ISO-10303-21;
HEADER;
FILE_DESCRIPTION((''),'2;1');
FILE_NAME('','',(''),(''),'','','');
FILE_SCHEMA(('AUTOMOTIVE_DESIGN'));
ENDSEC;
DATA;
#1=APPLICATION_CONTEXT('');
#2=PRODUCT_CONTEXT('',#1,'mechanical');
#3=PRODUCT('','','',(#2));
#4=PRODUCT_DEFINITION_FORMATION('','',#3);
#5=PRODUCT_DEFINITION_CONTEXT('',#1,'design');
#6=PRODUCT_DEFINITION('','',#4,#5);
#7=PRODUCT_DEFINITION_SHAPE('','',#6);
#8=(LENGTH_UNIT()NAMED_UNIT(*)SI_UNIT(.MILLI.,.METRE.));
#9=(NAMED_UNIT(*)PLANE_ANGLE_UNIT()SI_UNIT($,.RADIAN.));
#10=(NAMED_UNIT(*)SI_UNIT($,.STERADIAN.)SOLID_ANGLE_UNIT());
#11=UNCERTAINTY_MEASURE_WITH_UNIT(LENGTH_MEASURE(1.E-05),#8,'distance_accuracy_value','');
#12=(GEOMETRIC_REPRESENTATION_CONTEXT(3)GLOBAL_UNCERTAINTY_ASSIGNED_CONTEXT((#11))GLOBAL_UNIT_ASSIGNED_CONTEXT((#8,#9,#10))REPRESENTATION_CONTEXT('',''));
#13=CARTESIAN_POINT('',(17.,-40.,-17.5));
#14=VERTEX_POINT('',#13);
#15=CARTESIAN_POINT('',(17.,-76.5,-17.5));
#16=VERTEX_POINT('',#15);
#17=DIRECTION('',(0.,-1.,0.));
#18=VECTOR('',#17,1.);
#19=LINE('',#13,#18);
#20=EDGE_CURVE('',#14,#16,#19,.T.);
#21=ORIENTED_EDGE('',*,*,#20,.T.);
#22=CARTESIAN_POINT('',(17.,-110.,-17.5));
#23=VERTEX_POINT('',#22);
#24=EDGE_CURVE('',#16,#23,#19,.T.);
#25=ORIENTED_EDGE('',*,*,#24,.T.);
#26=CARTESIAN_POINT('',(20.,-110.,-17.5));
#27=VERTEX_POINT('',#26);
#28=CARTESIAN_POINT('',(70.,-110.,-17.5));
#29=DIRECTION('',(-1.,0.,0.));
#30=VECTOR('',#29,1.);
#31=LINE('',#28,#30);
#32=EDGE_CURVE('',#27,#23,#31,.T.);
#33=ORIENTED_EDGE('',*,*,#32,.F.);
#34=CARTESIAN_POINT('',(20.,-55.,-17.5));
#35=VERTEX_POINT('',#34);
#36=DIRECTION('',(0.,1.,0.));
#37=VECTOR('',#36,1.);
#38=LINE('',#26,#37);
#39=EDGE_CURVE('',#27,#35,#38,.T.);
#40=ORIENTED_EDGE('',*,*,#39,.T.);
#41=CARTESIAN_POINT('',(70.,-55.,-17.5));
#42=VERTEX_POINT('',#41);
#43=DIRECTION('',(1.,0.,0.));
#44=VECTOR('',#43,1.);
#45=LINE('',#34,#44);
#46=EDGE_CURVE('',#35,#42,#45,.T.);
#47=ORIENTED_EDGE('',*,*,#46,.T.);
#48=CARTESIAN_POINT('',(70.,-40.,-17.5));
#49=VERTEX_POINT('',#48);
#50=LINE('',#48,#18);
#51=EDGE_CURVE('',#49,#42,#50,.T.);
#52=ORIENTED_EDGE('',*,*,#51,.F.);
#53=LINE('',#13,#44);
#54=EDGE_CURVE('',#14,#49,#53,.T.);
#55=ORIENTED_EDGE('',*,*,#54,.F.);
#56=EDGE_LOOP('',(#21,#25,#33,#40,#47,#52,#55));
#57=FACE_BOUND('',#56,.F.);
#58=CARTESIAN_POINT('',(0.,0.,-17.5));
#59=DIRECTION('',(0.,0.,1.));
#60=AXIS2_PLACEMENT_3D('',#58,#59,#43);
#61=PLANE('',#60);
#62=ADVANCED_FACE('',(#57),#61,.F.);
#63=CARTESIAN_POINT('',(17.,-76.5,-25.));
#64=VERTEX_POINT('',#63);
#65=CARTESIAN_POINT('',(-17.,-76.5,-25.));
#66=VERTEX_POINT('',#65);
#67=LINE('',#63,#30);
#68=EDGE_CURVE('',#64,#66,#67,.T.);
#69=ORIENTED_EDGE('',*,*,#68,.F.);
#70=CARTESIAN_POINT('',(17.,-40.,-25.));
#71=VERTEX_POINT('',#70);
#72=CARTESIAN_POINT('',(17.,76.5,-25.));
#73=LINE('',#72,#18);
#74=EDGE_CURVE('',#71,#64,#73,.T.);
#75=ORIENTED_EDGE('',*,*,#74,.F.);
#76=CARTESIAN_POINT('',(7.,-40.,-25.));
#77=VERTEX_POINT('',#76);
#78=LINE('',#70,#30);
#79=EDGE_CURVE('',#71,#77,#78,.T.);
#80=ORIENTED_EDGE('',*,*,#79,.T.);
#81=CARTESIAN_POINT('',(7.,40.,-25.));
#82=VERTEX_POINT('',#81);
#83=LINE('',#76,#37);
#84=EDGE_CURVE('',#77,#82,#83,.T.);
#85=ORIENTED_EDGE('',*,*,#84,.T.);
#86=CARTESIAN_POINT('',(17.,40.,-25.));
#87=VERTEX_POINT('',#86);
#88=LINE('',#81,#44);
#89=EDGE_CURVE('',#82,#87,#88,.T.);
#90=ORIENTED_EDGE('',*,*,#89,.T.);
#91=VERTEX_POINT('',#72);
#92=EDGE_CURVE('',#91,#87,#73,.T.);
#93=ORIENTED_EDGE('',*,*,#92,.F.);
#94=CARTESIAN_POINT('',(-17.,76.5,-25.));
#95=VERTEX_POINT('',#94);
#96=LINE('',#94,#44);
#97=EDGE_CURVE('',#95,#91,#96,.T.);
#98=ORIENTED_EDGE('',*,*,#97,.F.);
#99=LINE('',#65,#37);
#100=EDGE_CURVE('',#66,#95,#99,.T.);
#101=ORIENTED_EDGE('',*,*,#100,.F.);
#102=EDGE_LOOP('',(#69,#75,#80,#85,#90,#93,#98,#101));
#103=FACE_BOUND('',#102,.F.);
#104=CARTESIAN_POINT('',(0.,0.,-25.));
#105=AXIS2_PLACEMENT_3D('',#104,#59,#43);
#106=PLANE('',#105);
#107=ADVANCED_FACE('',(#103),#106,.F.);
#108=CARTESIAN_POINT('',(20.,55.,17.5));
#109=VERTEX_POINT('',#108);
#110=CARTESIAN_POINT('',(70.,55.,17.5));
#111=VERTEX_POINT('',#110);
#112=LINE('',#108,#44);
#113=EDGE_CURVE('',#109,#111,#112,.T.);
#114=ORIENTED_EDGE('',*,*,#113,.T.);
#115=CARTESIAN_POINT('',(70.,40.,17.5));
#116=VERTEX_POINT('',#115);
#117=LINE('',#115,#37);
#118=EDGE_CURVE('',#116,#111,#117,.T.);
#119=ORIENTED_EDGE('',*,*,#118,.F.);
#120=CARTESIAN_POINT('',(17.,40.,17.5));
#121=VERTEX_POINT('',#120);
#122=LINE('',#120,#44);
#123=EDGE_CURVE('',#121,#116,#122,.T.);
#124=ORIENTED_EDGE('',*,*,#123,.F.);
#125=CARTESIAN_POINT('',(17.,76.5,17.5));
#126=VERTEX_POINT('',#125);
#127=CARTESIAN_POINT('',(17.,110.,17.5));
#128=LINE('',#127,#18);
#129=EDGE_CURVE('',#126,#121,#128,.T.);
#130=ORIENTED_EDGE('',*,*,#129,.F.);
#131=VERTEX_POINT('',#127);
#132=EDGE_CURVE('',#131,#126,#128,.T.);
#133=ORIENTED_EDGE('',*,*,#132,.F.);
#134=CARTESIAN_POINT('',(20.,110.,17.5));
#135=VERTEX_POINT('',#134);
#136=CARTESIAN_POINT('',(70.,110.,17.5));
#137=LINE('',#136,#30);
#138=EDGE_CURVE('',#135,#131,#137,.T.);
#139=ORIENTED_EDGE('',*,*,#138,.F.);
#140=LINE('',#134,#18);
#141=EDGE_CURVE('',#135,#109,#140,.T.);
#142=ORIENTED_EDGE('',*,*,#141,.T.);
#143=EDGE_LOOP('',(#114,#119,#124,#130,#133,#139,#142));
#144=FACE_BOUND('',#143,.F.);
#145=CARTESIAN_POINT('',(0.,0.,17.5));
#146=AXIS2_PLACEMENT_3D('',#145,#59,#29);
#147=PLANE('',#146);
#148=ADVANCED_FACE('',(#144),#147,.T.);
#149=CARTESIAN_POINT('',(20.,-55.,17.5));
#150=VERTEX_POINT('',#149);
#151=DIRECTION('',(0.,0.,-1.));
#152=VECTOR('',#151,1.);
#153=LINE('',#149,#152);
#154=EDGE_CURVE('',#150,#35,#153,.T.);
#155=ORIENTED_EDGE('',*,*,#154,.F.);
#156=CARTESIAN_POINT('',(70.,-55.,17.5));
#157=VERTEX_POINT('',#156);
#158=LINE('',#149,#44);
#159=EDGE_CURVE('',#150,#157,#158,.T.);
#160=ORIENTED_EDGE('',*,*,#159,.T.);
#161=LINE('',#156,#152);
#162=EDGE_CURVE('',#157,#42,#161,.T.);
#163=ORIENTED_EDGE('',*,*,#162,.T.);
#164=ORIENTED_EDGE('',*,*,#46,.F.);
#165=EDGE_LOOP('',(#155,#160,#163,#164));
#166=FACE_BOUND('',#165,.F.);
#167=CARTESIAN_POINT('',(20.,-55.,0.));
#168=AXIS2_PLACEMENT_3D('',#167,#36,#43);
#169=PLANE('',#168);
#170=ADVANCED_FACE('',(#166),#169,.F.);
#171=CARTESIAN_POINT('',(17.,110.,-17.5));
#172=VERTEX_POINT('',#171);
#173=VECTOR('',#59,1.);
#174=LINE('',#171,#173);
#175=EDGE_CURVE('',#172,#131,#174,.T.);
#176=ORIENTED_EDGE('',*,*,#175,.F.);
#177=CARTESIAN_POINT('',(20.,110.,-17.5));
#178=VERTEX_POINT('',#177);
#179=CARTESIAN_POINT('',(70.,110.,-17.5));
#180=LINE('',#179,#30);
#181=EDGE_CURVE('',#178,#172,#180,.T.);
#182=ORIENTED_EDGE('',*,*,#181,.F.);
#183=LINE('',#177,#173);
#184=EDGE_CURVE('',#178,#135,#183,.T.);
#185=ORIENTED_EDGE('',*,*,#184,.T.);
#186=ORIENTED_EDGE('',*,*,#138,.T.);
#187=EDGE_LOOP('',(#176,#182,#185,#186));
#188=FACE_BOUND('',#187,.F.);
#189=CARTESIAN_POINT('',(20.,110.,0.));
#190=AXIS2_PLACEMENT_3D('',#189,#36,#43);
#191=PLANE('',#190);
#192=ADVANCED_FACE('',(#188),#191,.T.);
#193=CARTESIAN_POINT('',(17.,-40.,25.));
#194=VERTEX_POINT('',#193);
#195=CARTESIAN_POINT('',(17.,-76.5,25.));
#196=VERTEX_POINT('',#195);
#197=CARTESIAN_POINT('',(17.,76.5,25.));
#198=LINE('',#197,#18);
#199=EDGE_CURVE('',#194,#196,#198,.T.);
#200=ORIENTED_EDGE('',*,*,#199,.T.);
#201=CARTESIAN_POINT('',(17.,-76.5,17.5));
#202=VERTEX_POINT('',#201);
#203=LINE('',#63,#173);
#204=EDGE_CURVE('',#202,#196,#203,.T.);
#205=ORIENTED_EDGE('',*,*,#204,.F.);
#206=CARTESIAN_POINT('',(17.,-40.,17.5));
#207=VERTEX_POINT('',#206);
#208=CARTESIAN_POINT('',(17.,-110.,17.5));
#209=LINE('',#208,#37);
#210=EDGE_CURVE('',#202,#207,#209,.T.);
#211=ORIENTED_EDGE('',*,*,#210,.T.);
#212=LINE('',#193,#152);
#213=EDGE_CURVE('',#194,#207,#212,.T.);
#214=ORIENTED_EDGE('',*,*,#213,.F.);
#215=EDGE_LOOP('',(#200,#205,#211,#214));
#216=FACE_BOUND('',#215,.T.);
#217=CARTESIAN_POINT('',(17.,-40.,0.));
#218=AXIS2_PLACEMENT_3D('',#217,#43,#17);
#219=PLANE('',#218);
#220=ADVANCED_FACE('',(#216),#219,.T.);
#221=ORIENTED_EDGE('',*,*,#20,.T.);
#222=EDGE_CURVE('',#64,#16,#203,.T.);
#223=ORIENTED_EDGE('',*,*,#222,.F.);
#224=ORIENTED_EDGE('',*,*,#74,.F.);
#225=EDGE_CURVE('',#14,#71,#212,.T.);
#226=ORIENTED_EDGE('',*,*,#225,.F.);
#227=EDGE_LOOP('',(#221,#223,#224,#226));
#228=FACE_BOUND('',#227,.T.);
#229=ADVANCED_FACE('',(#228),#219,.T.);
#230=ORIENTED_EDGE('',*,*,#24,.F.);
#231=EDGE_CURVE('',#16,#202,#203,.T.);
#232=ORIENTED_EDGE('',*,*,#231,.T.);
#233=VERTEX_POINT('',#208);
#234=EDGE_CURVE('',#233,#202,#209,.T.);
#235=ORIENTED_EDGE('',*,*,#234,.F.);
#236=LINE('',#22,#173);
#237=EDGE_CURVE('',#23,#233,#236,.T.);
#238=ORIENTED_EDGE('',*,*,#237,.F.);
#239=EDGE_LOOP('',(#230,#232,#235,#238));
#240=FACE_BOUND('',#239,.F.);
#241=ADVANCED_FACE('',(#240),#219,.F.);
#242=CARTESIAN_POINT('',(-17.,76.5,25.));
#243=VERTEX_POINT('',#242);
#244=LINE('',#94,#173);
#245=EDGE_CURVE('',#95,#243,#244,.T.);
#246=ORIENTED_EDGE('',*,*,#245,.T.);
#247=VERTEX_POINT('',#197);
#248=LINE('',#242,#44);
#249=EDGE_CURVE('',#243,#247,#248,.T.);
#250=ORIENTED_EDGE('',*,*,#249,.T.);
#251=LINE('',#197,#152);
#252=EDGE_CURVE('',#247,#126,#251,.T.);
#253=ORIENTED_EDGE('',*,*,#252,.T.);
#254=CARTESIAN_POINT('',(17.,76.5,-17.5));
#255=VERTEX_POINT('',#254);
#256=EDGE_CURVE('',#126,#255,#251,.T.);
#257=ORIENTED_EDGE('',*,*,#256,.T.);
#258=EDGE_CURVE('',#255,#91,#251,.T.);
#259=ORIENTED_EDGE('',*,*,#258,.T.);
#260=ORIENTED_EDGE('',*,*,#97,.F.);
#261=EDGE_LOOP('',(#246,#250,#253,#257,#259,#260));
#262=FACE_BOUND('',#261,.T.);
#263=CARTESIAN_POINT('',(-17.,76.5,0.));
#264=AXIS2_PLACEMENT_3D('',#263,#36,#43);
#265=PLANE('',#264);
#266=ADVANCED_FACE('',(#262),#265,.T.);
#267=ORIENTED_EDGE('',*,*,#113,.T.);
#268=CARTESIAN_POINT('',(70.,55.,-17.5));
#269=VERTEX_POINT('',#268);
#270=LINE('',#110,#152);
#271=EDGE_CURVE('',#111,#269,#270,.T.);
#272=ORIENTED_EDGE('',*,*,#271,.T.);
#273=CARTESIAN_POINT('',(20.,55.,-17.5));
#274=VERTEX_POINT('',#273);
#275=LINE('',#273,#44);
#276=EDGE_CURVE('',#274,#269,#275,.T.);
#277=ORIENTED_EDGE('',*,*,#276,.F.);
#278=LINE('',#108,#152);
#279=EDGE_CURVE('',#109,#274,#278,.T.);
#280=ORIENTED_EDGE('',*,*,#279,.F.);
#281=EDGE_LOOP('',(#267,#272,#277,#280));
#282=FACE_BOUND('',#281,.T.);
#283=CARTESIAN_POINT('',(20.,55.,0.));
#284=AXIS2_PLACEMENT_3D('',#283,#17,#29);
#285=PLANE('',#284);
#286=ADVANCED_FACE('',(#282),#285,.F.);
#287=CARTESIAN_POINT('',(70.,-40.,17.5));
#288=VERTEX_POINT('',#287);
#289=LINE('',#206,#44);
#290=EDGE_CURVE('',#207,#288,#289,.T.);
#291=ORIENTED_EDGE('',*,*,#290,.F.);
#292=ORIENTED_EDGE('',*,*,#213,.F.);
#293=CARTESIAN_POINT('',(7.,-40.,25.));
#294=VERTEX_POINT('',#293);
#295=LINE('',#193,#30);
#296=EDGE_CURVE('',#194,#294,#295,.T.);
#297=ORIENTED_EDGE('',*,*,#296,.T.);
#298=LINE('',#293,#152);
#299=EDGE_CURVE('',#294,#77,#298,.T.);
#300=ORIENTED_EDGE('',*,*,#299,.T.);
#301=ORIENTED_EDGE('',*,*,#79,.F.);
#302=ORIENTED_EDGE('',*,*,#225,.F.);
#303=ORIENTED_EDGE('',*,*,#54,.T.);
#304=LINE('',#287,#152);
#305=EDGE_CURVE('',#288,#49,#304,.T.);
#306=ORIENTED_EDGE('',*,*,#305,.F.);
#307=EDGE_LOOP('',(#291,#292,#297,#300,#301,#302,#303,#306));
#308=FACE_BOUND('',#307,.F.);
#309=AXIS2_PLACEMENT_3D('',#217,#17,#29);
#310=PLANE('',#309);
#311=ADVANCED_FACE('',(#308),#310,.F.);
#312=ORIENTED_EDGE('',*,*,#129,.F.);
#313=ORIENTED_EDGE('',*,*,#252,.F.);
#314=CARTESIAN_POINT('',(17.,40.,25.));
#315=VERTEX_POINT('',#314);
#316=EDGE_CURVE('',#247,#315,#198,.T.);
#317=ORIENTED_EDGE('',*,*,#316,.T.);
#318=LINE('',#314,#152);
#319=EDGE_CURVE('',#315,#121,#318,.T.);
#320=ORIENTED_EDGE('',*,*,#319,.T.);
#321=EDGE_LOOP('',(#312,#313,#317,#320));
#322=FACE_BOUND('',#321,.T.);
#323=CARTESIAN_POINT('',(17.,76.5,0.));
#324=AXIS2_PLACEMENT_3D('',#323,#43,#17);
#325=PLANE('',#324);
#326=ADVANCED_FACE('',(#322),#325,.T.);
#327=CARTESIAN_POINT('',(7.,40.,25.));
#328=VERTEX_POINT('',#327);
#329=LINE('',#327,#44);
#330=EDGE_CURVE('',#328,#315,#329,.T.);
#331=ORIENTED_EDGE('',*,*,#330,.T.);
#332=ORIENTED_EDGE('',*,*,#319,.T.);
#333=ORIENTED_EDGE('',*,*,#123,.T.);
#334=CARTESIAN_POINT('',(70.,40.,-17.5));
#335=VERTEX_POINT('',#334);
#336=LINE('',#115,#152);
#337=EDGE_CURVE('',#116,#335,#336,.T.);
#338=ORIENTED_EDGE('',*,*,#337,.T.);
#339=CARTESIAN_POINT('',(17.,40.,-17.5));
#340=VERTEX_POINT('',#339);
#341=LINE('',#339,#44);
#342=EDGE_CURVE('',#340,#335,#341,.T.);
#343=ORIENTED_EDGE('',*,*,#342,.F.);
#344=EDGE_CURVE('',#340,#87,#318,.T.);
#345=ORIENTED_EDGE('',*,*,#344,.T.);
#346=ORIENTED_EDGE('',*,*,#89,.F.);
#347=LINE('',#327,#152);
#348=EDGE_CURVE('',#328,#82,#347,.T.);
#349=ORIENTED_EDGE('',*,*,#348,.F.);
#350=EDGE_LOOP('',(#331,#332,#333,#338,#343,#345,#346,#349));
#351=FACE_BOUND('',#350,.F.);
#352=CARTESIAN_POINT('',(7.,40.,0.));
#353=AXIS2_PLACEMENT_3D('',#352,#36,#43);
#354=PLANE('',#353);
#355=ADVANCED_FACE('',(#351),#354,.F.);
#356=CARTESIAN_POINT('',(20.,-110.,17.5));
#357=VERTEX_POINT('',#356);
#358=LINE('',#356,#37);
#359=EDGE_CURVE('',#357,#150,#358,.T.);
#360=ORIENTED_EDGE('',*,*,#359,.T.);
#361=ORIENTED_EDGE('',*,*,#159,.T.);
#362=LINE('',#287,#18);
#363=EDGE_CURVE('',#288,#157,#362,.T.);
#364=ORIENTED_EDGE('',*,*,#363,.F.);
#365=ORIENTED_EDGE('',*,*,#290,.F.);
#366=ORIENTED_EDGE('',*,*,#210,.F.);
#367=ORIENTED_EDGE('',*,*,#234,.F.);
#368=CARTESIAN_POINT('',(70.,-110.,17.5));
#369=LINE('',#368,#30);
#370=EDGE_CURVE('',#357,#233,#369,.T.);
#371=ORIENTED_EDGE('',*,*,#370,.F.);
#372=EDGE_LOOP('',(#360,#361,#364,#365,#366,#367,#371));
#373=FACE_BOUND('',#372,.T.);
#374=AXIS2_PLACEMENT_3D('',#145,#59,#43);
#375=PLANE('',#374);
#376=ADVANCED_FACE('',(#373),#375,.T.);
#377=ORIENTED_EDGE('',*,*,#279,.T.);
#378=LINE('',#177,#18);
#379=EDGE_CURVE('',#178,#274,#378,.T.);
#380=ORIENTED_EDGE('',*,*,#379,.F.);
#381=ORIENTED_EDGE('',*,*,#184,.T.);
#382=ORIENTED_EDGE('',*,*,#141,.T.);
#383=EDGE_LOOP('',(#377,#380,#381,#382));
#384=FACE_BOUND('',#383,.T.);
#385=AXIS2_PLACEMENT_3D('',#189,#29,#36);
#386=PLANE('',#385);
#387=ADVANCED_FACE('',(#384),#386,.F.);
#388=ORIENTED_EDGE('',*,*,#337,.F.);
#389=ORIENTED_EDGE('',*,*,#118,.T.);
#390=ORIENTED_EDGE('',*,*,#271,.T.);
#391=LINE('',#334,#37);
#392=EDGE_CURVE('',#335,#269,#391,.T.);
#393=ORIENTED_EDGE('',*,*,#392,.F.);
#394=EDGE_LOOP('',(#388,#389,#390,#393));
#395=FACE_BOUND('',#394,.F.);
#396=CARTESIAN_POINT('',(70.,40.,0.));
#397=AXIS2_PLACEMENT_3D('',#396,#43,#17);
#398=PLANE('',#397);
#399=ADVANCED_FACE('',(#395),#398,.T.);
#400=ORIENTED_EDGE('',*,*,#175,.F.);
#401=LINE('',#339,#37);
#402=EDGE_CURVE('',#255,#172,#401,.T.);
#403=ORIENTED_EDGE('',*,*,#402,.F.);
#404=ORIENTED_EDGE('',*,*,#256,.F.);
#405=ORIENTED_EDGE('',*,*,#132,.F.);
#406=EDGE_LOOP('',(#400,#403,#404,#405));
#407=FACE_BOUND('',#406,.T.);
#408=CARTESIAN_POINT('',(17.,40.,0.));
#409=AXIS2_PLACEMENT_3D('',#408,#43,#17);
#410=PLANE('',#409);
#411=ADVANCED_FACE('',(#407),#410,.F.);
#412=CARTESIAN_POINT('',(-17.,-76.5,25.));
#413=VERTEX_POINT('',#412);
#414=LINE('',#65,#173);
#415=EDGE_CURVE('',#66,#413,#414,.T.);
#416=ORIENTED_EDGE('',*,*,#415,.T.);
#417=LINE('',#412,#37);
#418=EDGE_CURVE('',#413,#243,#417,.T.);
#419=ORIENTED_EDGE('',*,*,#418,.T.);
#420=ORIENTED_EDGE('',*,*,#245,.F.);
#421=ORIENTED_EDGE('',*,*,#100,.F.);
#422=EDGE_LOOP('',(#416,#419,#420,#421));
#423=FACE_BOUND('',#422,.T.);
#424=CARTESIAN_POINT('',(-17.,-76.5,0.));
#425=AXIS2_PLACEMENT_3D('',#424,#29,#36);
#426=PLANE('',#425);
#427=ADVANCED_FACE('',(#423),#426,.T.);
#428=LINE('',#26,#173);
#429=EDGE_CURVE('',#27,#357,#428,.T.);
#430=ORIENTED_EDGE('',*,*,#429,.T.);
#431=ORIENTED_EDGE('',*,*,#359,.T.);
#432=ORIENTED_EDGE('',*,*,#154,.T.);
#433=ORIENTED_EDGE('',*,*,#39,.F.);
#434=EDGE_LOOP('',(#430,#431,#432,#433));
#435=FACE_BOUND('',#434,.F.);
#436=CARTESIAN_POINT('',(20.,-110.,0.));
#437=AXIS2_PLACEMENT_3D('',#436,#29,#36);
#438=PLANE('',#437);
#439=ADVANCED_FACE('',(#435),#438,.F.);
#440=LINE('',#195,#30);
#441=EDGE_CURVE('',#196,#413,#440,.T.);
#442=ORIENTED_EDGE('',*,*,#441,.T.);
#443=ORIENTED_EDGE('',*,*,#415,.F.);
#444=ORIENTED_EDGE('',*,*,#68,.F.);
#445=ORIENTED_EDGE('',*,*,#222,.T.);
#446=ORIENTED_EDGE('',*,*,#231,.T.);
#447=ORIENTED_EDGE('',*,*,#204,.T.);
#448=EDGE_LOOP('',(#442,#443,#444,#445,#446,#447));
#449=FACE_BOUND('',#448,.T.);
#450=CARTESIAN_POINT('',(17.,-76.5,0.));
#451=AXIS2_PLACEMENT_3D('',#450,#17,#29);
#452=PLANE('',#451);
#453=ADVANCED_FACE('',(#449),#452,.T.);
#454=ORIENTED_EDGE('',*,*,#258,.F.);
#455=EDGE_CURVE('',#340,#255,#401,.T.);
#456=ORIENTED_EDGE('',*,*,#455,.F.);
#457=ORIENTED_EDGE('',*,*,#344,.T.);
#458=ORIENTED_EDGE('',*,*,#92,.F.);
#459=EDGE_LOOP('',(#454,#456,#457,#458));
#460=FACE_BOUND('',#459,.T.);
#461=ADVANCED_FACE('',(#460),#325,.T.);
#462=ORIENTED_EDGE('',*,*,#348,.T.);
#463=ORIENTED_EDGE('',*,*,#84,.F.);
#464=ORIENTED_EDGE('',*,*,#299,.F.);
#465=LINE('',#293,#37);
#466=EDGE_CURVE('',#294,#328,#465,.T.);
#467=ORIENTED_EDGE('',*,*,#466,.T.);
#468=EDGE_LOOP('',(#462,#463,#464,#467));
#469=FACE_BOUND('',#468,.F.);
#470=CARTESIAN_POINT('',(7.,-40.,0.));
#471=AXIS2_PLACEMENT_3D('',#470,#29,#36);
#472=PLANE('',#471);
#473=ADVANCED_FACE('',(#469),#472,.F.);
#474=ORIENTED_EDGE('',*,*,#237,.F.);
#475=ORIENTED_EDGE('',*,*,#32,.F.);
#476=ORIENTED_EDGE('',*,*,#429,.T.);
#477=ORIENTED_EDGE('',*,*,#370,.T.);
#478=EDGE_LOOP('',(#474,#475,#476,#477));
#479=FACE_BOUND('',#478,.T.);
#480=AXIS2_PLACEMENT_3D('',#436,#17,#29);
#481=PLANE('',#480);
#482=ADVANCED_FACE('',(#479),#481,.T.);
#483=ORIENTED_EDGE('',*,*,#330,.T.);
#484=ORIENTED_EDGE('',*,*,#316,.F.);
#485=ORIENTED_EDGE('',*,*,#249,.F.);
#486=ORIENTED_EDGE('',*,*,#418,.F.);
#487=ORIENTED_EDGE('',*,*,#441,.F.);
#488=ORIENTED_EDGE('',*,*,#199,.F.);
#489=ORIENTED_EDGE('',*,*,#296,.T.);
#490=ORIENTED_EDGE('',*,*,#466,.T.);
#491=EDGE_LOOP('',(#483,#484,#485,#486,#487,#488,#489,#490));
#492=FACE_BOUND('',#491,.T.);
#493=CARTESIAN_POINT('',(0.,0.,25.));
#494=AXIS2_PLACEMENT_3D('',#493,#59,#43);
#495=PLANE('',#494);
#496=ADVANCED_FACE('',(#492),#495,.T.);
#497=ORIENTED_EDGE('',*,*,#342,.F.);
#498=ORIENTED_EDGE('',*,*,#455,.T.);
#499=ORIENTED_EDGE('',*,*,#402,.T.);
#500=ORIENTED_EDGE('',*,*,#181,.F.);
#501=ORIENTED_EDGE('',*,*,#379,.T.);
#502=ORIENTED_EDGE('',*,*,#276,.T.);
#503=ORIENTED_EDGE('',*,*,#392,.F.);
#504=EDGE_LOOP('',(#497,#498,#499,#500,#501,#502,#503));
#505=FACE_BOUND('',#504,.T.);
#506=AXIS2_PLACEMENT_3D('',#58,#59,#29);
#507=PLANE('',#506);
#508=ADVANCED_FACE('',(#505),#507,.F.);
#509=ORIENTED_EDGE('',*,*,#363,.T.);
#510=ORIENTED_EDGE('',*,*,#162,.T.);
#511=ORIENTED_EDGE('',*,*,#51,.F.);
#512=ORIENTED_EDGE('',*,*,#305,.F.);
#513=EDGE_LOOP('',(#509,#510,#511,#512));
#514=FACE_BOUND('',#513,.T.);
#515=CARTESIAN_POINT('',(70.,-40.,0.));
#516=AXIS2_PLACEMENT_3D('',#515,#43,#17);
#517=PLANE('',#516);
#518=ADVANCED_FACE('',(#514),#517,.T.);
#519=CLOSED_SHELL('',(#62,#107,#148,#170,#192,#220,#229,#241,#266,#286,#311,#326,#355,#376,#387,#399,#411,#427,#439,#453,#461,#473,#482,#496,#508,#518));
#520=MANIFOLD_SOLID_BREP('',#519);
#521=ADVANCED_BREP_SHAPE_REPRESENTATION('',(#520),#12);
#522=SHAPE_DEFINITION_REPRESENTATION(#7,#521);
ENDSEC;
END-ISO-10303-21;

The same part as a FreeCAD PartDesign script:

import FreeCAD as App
import Part
import Sketcher


def add_polygon(sketch, points):
    """Adds a closed chain of lines whose ends are joined by coincident constraints."""
    first, n = sketch.GeometryCount, len(points)
    for a, b in zip(points, points[1:] + points[:1]):
        sketch.addGeometry(Part.LineSegment(App.Vector(*a, 0), App.Vector(*b, 0)), False)
    for i in range(n):
        sketch.addConstraint(Sketcher.Constraint("Coincident", first + i, 2, first + (i + 1) % n, 1))

doc = App.newDocument("Part")
body = doc.addObject("PartDesign::Body", "Body")

sketch1 = body.newObject("Sketcher::SketchObject", "Sketch")
sketch1.AttachmentSupport = (doc.getObject("XY_Plane"), [""])
sketch1.MapMode = "FlatFace"
add_polygon(sketch1, [(17, 76), (-17, 76), (-17, -76), (17, -76), (17, -40), (7, -40), (7, 40), (17, 40)])
sketch1.addConstraint(Sketcher.Constraint("Horizontal", 0))
sketch1.addConstraint(Sketcher.Constraint("Vertical", 1))
sketch1.addConstraint(Sketcher.Constraint("Horizontal", 2))
sketch1.addConstraint(Sketcher.Constraint("Vertical", 3))
sketch1.addConstraint(Sketcher.Constraint("Horizontal", 4))
sketch1.addConstraint(Sketcher.Constraint("Vertical", 5))
sketch1.addConstraint(Sketcher.Constraint("Horizontal", 6))
sketch1.addConstraint(Sketcher.Constraint("Vertical", 7))
sketch1.addConstraint(Sketcher.Constraint("Symmetric", 0, 2, 2, 2, -1, 1))
sketch1.addConstraint(Sketcher.Constraint("Symmetric", 3, 2, 6, 2, -1))
sketch1.addConstraint(Sketcher.Constraint("DistanceX", 0, 2, 0, 1, 34.0))
sketch1.addConstraint(Sketcher.Constraint("DistanceX", 4, 2, 4, 1, 10.0))
sketch1.addConstraint(Sketcher.Constraint("DistanceY", 1, 2, 1, 1, 153.0))
sketch1.addConstraint(Sketcher.Constraint("DistanceY", 5, 1, 5, 2, 80.0))
pad1 = body.newObject("PartDesign::Pad", "Pad")
pad1.Profile = sketch1
pad1.Length = 50
pad1.Midplane = True

sketch2 = body.newObject("Sketcher::SketchObject", "Sketch001")
sketch2.AttachmentSupport = (doc.getObject("XY_Plane"), [""])
sketch2.MapMode = "FlatFace"
add_polygon(sketch2, [(17, -40), (17, -110), (20, -110), (20, -55), (70, -55), (70, -40)])
sketch2.addConstraint(Sketcher.Constraint("Vertical", 0))
sketch2.addConstraint(Sketcher.Constraint("Horizontal", 1))
sketch2.addConstraint(Sketcher.Constraint("Vertical", 2))
sketch2.addConstraint(Sketcher.Constraint("Horizontal", 3))
sketch2.addConstraint(Sketcher.Constraint("Vertical", 4))
sketch2.addConstraint(Sketcher.Constraint("Horizontal", 5))
sketch2.addConstraint(Sketcher.Constraint("DistanceX", 1, 1, 1, 2, 3.0))
sketch2.addConstraint(Sketcher.Constraint("DistanceX", 5, 2, 5, 1, 53.0))
sketch2.addConstraint(Sketcher.Constraint("DistanceY", 0, 2, 0, 1, 70.0))
sketch2.addConstraint(Sketcher.Constraint("DistanceY", 2, 1, 2, 2, 55.0))
sketch2.addConstraint(Sketcher.Constraint("DistanceY", 2, 2, -1, 1, 55.0))
sketch2.addConstraint(Sketcher.Constraint("DistanceX", -1, 1, 3, 2, 70.0))
pad2 = body.newObject("PartDesign::Pad", "Pad001")
pad2.Profile = sketch2
pad2.Length = 35
pad2.Midplane = True
doc.recompute()

mirrored = body.newObject("PartDesign::Mirrored", "Mirrored")
mirrored.Originals = [pad2]
mirrored.MirrorPlane = (doc.getObject("XZ_Plane"), [""])
body.Tip = mirrored

doc.recompute()
